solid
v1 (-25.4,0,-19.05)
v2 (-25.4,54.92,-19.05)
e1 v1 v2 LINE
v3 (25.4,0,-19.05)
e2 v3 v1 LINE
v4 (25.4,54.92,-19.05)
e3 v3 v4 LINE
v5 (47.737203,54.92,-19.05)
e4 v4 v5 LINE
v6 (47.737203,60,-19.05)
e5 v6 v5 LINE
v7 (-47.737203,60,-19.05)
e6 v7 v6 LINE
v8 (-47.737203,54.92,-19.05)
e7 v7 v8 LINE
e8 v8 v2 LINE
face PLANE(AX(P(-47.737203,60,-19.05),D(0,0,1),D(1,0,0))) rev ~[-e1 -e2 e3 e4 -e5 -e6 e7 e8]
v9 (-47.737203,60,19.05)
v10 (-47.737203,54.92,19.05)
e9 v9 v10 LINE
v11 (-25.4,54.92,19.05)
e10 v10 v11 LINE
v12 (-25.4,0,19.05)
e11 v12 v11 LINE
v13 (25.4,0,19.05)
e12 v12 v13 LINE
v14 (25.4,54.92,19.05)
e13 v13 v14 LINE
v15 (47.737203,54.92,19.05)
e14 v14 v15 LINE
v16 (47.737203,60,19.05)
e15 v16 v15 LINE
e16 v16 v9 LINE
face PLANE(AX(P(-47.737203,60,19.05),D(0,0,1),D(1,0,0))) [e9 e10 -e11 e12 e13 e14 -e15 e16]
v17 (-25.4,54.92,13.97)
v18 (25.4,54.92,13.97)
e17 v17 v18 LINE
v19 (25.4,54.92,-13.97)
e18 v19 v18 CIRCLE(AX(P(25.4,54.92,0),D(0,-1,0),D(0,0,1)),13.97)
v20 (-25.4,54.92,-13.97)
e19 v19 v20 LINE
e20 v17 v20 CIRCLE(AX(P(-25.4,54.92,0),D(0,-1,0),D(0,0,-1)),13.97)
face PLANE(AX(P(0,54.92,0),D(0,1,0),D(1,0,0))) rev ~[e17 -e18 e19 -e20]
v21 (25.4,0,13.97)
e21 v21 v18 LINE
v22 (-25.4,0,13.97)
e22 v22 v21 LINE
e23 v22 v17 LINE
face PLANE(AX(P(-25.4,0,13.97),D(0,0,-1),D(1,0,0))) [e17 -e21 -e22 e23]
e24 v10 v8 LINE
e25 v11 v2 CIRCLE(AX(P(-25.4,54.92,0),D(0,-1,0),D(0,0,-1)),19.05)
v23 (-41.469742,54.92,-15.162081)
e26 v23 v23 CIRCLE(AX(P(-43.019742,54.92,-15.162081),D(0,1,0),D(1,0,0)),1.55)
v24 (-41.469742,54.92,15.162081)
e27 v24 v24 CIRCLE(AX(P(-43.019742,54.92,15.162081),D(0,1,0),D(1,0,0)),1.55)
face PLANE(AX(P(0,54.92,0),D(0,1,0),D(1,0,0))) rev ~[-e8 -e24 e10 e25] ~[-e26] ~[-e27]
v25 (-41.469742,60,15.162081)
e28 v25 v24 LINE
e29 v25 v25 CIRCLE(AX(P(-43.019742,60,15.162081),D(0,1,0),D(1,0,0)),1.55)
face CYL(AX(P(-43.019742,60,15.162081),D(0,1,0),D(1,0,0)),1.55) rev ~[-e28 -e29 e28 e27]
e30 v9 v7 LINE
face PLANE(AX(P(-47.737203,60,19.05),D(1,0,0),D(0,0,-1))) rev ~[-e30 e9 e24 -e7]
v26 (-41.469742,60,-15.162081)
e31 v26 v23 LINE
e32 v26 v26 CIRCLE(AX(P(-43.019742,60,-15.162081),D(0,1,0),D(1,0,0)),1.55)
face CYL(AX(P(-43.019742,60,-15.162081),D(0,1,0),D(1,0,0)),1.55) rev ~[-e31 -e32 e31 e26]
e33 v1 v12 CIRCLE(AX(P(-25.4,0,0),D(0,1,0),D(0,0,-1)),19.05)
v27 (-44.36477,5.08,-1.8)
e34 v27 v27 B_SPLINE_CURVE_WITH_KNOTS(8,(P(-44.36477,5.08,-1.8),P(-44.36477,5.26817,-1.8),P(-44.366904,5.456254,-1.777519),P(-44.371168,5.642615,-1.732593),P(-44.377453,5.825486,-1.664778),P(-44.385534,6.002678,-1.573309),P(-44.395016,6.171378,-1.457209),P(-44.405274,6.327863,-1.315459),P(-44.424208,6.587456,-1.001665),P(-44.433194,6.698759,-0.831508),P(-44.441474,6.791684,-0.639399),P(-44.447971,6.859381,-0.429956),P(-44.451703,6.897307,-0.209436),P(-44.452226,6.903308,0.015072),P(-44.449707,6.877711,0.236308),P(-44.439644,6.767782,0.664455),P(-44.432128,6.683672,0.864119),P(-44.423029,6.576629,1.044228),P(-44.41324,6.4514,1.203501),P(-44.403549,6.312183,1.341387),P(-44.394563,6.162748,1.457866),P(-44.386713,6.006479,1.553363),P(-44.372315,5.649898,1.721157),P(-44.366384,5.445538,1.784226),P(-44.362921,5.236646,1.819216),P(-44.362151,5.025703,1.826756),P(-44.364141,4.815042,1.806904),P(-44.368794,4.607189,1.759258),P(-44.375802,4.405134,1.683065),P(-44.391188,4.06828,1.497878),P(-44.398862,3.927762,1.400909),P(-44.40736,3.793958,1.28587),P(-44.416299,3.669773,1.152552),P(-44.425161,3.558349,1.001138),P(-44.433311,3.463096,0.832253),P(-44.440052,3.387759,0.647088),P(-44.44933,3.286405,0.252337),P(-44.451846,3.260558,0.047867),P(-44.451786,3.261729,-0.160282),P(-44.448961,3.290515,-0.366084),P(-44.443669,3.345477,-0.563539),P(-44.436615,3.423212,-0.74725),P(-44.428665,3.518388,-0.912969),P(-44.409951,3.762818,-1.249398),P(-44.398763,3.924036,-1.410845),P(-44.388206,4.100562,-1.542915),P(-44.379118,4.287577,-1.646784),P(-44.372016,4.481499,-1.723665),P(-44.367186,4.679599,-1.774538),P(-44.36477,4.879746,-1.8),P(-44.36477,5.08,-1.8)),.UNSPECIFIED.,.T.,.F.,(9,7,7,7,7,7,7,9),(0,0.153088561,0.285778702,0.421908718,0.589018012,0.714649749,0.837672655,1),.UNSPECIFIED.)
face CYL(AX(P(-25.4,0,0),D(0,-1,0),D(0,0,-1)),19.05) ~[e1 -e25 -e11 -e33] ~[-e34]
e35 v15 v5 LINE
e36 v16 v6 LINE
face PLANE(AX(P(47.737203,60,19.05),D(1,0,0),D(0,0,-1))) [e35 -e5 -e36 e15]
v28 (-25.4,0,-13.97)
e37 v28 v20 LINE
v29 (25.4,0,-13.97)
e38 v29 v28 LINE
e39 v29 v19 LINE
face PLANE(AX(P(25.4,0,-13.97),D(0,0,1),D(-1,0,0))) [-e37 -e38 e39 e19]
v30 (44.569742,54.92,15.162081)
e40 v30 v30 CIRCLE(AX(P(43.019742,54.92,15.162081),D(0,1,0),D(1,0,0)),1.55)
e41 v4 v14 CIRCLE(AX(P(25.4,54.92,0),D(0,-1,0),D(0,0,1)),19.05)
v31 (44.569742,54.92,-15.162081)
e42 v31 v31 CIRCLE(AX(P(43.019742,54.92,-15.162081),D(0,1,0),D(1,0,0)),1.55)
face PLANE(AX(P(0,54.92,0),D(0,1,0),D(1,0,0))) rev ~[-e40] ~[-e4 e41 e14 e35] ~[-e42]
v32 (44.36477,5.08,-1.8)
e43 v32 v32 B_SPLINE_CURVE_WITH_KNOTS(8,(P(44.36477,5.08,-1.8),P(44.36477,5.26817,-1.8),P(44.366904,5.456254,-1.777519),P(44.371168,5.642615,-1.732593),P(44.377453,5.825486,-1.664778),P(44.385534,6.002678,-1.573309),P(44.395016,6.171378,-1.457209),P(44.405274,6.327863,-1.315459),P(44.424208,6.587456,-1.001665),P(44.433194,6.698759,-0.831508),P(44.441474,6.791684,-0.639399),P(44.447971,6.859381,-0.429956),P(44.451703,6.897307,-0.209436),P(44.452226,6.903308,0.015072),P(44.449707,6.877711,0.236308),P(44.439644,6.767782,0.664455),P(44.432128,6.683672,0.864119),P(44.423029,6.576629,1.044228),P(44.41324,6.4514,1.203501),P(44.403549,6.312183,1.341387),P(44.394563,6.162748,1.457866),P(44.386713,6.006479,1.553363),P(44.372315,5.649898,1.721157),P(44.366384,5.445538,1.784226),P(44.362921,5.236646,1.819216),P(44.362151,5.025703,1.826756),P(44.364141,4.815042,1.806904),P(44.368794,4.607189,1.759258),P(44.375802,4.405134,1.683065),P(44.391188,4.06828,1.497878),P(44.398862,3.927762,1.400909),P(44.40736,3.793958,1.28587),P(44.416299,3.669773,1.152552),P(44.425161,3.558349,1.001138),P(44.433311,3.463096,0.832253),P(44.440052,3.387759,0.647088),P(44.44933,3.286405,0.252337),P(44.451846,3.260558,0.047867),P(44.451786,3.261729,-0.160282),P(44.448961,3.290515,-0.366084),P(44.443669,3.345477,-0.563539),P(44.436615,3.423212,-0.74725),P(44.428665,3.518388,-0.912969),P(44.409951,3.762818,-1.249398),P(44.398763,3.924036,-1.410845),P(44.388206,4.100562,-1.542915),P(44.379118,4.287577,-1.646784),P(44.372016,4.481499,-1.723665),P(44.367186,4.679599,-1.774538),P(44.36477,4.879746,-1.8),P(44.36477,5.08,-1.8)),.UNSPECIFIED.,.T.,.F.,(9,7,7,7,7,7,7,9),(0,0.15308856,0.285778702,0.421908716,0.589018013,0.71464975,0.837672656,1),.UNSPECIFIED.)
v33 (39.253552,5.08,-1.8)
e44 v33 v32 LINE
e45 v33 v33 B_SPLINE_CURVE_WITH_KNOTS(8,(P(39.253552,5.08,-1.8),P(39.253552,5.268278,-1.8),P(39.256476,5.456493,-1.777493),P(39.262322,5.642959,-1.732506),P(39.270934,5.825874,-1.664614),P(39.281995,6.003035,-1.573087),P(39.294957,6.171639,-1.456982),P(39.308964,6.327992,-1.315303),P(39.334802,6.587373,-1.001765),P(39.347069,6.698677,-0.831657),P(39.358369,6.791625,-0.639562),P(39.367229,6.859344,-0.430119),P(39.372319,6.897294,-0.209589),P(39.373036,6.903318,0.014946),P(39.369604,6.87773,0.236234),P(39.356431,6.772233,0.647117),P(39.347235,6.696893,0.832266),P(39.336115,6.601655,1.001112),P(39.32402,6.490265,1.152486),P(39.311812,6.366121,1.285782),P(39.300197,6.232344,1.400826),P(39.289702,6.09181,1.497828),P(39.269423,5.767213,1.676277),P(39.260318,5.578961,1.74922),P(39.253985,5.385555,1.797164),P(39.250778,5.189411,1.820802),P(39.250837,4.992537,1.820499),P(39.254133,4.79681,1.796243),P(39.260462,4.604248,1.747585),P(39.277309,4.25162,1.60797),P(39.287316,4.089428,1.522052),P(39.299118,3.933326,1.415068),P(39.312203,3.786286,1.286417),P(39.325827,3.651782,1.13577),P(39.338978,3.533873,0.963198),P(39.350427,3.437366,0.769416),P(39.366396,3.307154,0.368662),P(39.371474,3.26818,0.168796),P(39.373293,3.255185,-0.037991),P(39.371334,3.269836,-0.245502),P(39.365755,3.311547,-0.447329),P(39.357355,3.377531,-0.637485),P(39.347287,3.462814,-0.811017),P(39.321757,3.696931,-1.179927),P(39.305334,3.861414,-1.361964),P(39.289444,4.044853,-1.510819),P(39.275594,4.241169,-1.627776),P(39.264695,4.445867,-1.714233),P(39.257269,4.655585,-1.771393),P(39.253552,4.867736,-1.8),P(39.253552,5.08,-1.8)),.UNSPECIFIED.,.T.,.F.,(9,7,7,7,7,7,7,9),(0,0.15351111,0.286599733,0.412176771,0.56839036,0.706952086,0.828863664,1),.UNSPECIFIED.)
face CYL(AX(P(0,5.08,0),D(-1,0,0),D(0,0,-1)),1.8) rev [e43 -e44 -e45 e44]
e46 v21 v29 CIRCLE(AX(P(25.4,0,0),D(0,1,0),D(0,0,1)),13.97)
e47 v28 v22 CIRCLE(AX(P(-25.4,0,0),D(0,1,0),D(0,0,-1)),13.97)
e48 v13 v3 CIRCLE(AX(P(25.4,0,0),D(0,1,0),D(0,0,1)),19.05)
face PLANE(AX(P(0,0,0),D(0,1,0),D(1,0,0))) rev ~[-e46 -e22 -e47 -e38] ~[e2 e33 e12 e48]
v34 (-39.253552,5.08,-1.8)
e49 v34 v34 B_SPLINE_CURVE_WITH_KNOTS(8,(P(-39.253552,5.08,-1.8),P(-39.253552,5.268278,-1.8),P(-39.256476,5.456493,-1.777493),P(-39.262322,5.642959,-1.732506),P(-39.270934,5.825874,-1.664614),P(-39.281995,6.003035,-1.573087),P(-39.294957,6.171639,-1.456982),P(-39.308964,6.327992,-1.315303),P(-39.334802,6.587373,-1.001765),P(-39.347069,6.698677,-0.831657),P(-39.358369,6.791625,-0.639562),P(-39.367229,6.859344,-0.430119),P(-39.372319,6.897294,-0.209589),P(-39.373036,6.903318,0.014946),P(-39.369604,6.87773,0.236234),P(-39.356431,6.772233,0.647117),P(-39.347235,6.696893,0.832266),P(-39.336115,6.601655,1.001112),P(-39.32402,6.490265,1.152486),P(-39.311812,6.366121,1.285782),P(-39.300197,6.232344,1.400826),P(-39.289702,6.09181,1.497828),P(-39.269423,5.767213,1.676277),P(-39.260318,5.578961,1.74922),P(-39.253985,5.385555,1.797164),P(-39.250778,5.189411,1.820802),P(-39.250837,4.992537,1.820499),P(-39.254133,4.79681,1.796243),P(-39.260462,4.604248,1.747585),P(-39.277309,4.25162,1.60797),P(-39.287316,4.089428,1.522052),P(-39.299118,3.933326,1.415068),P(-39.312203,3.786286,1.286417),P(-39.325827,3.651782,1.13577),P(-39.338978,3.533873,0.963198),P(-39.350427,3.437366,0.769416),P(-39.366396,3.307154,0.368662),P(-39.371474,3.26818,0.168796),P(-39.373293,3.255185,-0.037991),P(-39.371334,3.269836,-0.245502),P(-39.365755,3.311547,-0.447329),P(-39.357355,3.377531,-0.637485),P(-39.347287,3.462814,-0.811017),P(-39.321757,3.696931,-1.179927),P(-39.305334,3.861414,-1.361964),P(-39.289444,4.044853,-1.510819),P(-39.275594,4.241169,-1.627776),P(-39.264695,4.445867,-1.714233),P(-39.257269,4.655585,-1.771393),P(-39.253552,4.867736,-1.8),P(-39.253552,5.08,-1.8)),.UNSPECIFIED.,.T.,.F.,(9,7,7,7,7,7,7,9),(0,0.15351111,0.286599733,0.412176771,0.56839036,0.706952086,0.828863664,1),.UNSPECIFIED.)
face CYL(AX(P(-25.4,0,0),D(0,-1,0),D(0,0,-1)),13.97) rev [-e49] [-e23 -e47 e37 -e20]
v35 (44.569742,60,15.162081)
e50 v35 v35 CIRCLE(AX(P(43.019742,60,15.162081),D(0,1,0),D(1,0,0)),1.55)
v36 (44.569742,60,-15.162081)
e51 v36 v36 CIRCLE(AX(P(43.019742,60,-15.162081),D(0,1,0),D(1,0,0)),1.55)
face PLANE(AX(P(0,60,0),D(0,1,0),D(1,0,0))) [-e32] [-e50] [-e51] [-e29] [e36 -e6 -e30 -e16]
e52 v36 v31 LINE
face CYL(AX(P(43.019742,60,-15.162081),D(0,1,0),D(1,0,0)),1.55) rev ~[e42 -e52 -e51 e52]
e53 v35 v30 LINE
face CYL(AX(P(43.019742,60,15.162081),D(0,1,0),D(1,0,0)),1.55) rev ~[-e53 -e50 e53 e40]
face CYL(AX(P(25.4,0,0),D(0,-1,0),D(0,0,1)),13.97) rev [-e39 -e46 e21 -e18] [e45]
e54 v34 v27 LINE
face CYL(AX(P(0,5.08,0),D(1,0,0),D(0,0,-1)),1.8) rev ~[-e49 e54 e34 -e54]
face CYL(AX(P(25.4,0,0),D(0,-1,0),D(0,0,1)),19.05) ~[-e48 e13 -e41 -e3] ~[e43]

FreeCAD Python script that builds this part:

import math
import FreeCAD as App
import Part
import Sketcher
Q = App.Units.Quantity

doc = App.newDocument("Part")
params = doc.addObject("Spreadsheet::Sheet", "Params")
for row, (alias, value) in enumerate([
    ("sketch1_width", "2 in"),
    ("sketch1_radius", "0.75 in"),
    ("sketch1_radius2", "0.55 in"),
    ("pad1_length", "60 mm"),
    ("sketch2_height", "1.5 in"),
    ("pad2_length", "0.2 in"),
], start=1):
    params.set(f"A{row}", alias)
    params.set(f"B{row}", "=" + value)
    params.setAlias(f"B{row}", alias)

body = doc.addObject("PartDesign::Body", "Body")

# Sketch on XZ plane
sketch1 = body.newObject("Sketcher::SketchObject", "Sketch")
sketch1.AttachmentSupport = (doc.getObject("XZ_Plane"), [""])
sketch1.MapMode = "FlatFace"
sketch1.addGeometry(Part.LineSegment(App.Vector(-25, 19, 0), App.Vector(25, 19, 0)), False)
sketch1.addGeometry(Part.ArcOfCircle(Part.Circle(App.Vector(25, 0, 0), App.Vector(0, 0, 1), 19), math.radians(-90), math.radians(90)), False)
sketch1.addGeometry(Part.LineSegment(App.Vector(25, -19, 0), App.Vector(-25, -19, 0)), False)
sketch1.addGeometry(Part.ArcOfCircle(Part.Circle(App.Vector(-25, 0, 0), App.Vector(0, 0, 1), 19), math.radians(90), math.radians(270)), False)
sketch1.addGeometry(Part.LineSegment(App.Vector(25, 14, 0), App.Vector(-25, 14, 0)), False)
sketch1.addGeometry(Part.ArcOfCircle(Part.Circle(App.Vector(-25, 0, 0), App.Vector(0, 0, 1), 14), math.radians(90), math.radians(270)), False)
sketch1.addGeometry(Part.LineSegment(App.Vector(-25, -14, 0), App.Vector(25, -14, 0)), False)
sketch1.addGeometry(Part.ArcOfCircle(Part.Circle(App.Vector(25, 0, 0), App.Vector(0, 0, 1), 14), math.radians(-90), math.radians(90)), False)
sketch1.addConstraint(Sketcher.Constraint("Tangent", 0, 2, 1, 2))
sketch1.addConstraint(Sketcher.Constraint("Tangent", 1, 1, 2, 1))
sketch1.addConstraint(Sketcher.Constraint("Tangent", 2, 2, 3, 2))
sketch1.addConstraint(Sketcher.Constraint("Tangent", 3, 1, 0, 1))
sketch1.addConstraint(Sketcher.Constraint("Tangent", 4, 2, 5, 1))
sketch1.addConstraint(Sketcher.Constraint("Tangent", 5, 2, 6, 1))
sketch1.addConstraint(Sketcher.Constraint("Tangent", 6, 2, 7, 1))
sketch1.addConstraint(Sketcher.Constraint("Tangent", 7, 2, 4, 1))
sketch1.addConstraint(Sketcher.Constraint("Horizontal", 0))
sketch1.addConstraint(Sketcher.Constraint("Horizontal", 2))
sketch1.addConstraint(Sketcher.Constraint("Horizontal", 4))
sketch1.addConstraint(Sketcher.Constraint("Horizontal", 6))
sketch1.addConstraint(Sketcher.Constraint("Coincident", 5, 3, 3, 3))
sketch1.addConstraint(Sketcher.Constraint("Symmetric", 1, 3, 3, 3, -1, 1))
sketch1.addConstraint(Sketcher.Constraint("Vertical", 7, 3, 0, 2))
sketch1.addConstraint(Sketcher.Constraint("DistanceX", 0, 1, 0, 2, Q("2 in")))
sketch1.addConstraint(Sketcher.Constraint("Radius", 1, Q("0.75 in")))
sketch1.addConstraint(Sketcher.Constraint("Radius", 5, Q("0.55 in")))
sketch1.setExpression("Constraints[15]", "Params.sketch1_width")
sketch1.setExpression("Constraints[16]", "Params.sketch1_radius")
sketch1.setExpression("Constraints[17]", "Params.sketch1_radius2")
pad1 = body.newObject("PartDesign::Pad", "Pad")
pad1.Profile = sketch1
pad1.setExpression("Length", "Params.pad1_length")
pad1.Reversed = True

# Sketch on XZ plane
sketch2 = body.newObject("Sketcher::SketchObject", "Sketch001")
sketch2.AttachmentSupport = (doc.getObject("XZ_Plane"), [""])
sketch2.MapMode = "FlatFace"
sketch2.AttachmentOffset = App.Placement(App.Vector(0, 0, -60), App.Rotation())
sketch2.addGeometry(Part.LineSegment(App.Vector(-47.7, -19.1, 0), App.Vector(-47.7, 19.1, 0)), False)
sketch2.addGeometry(Part.LineSegment(App.Vector(-47.7, 19.1, 0), App.Vector(47.7, 19.1, 0)), False)
sketch2.addGeometry(Part.LineSegment(App.Vector(47.7, 19.1, 0), App.Vector(47.7, -19.1, 0)), False)
sketch2.addGeometry(Part.LineSegment(App.Vector(47.7, -19.1, 0), App.Vector(-47.7, -19.1, 0)), False)
sketch2.addGeometry(Part.Circle(App.Vector(-43, 15.2, 0), App.Vector(0, 0, 1), 1.6), False)
sketch2.addGeometry(Part.Circle(App.Vector(43, 15.2, 0), App.Vector(0, 0, 1), 1.6), False)
sketch2.addGeometry(Part.Circle(App.Vector(-43, -15.2, 0), App.Vector(0, 0, 1), 1.6), False)
sketch2.addGeometry(Part.Circle(App.Vector(43, -15.2, 0), App.Vector(0, 0, 1), 1.6), False)
sketch2.addConstraint(Sketcher.Constraint("Coincident", 0, 2, 1, 1))
sketch2.addConstraint(Sketcher.Constraint("Coincident", 1, 2, 2, 1))
sketch2.addConstraint(Sketcher.Constraint("Coincident", 2, 2, 3, 1))
sketch2.addConstraint(Sketcher.Constraint("Coincident", 3, 2, 0, 1))
sketch2.addConstraint(Sketcher.Constraint("Vertical", 0))
sketch2.addConstraint(Sketcher.Constraint("Horizontal", 1))
sketch2.addConstraint(Sketcher.Constraint("Vertical", 2))
sketch2.addConstraint(Sketcher.Constraint("Horizontal", 3))
sketch2.addConstraint(Sketcher.Constraint("Equal", 4, 5))
sketch2.addConstraint(Sketcher.Constraint("Equal", 5, 6))
sketch2.addConstraint(Sketcher.Constraint("Equal", 6, 7))
sketch2.addConstraint(Sketcher.Constraint("Symmetric", 5, 3, 6, 3, -1, 1))
sketch2.addConstraint(Sketcher.Constraint("Symmetric", 4, 3, 7, 3, -1, 1))
sketch2.addConstraint(Sketcher.Constraint("Symmetric", 0, 2, 2, 2, -1, 1))
sketch2.addConstraint(Sketcher.Constraint("Symmetric", 4, 3, 5, 3, -2))
sketch2.addConstraint(Sketcher.Constraint("DistanceY", 0, 1, 0, 2, Q("1.5 in")))
sketch2.addConstraint(Sketcher.Constraint("Diameter", 4, Q("3.1 mm")))
sketch2.addConstraint(Sketcher.Constraint("DistanceX", 1, 1, 1, 2, Q("95.474406 mm")))
sketch2.addConstraint(Sketcher.Constraint("DistanceY", -1, 1, 4, 3, Q("15.162081 mm")))
sketch2.addConstraint(Sketcher.Constraint("DistanceX", 0, 2, 4, 3, Q("4.717461 mm")))
sketch2.setExpression("Constraints[15]", "Params.sketch2_height")
pad2 = body.newObject("PartDesign::Pad", "Pad001")
pad2.Profile = sketch2
pad2.setExpression("Length", "Params.pad2_length")

# Sketch on YZ plane
sketch3 = body.newObject("Sketcher::SketchObject", "Sketch002")
sketch3.AttachmentSupport = (doc.getObject("YZ_Plane"), [""])
sketch3.MapMode = "FlatFace"
sketch3.addGeometry(Part.Circle(App.Vector(5.1, 0, 0), App.Vector(0, 0, 1), 1.8), False)
sketch3.addConstraint(Sketcher.Constraint("PointOnObject", 0, 3, -1))
sketch3.addConstraint(Sketcher.Constraint("DistanceX", -1, 1, 0, 3, Q("0.2 in")))
sketch3.addConstraint(Sketcher.Constraint("Diameter", 0, Q("3.6 mm")))
pocket1 = body.newObject("PartDesign::Pocket", "Pocket")
pocket1.Profile = sketch3
pocket1.Type = "ThroughAll"
pocket1.Midplane = True

doc.recompute()
